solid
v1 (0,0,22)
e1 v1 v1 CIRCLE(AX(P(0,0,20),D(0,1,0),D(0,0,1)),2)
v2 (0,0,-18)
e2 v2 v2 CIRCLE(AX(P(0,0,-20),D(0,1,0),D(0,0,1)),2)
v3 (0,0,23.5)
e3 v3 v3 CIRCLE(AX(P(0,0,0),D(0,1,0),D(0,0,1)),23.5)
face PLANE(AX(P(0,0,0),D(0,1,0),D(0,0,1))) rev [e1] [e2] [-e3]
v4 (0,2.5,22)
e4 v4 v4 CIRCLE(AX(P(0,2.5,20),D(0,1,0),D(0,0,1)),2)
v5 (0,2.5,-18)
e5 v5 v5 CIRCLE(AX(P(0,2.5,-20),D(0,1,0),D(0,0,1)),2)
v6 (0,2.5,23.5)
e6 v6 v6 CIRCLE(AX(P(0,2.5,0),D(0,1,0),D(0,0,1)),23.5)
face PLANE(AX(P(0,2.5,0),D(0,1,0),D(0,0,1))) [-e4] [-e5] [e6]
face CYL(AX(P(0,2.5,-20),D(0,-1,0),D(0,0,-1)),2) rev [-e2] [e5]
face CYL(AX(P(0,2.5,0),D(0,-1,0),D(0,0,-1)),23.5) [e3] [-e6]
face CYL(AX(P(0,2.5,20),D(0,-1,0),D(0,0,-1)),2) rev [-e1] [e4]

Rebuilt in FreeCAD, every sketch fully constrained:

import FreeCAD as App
import Part
import Sketcher

V = App.Vector

doc = App.newDocument("Part")
params = doc.addObject("Spreadsheet::Sheet", "Params")
for row, (alias, value) in enumerate([
    ("sketch1_diameter", "47 mm"),
    ("sketch1_diameter2", "4 mm"),
    ("pad1_length", "2.5 mm"),
], start=1):
    params.set(f"A{row}", alias)
    params.set(f"B{row}", "=" + value)
    params.setAlias(f"B{row}", alias)

body = doc.addObject("PartDesign::Body", "Body")

# Sketch on XZ plane
sketch1 = doc.addObject("Sketcher::SketchObject", "Sketch")
body.addObject(sketch1)
sketch1.AttachmentSupport = (doc.XZ_Plane, [""])
sketch1.MapMode = "FlatFace"
sketch1.addGeometry(Part.Circle(V(0, 0, 0), V(0, 0, 1), 23.5), False)
sketch1.addGeometry(Part.Circle(V(0, -20, 0), V(0, 0, 1), 2), False)
sketch1.addGeometry(Part.Circle(V(0, 20, 0), V(0, 0, 1), 2), False)
sketch1.addConstraint(Sketcher.Constraint("Coincident", 0, 3, -1, 1))
sketch1.addConstraint(Sketcher.Constraint("Equal", 1, 2))
sketch1.addConstraint(Sketcher.Constraint("Symmetric", 1, 3, 2, 3, -1, 1))
sketch1.addConstraint(Sketcher.Constraint("PointOnObject", 1, 3, -2))
sketch1.addConstraint(Sketcher.Constraint("Diameter", 0, 47.0))
sketch1.addConstraint(Sketcher.Constraint("Diameter", 1, 4.0))
sketch1.addConstraint(Sketcher.Constraint("DistanceY", 1, 3, -1, 1, 20.0))
sketch1.setExpression("Constraints[4]", "Params.sketch1_diameter")
sketch1.setExpression("Constraints[5]", "Params.sketch1_diameter2")
pad1 = doc.addObject("PartDesign::Pad", "Pad")
body.addObject(pad1)
pad1.Profile = sketch1
pad1.setExpression("Length", "Params.pad1_length")
pad1.Reversed = True

doc.recompute()
